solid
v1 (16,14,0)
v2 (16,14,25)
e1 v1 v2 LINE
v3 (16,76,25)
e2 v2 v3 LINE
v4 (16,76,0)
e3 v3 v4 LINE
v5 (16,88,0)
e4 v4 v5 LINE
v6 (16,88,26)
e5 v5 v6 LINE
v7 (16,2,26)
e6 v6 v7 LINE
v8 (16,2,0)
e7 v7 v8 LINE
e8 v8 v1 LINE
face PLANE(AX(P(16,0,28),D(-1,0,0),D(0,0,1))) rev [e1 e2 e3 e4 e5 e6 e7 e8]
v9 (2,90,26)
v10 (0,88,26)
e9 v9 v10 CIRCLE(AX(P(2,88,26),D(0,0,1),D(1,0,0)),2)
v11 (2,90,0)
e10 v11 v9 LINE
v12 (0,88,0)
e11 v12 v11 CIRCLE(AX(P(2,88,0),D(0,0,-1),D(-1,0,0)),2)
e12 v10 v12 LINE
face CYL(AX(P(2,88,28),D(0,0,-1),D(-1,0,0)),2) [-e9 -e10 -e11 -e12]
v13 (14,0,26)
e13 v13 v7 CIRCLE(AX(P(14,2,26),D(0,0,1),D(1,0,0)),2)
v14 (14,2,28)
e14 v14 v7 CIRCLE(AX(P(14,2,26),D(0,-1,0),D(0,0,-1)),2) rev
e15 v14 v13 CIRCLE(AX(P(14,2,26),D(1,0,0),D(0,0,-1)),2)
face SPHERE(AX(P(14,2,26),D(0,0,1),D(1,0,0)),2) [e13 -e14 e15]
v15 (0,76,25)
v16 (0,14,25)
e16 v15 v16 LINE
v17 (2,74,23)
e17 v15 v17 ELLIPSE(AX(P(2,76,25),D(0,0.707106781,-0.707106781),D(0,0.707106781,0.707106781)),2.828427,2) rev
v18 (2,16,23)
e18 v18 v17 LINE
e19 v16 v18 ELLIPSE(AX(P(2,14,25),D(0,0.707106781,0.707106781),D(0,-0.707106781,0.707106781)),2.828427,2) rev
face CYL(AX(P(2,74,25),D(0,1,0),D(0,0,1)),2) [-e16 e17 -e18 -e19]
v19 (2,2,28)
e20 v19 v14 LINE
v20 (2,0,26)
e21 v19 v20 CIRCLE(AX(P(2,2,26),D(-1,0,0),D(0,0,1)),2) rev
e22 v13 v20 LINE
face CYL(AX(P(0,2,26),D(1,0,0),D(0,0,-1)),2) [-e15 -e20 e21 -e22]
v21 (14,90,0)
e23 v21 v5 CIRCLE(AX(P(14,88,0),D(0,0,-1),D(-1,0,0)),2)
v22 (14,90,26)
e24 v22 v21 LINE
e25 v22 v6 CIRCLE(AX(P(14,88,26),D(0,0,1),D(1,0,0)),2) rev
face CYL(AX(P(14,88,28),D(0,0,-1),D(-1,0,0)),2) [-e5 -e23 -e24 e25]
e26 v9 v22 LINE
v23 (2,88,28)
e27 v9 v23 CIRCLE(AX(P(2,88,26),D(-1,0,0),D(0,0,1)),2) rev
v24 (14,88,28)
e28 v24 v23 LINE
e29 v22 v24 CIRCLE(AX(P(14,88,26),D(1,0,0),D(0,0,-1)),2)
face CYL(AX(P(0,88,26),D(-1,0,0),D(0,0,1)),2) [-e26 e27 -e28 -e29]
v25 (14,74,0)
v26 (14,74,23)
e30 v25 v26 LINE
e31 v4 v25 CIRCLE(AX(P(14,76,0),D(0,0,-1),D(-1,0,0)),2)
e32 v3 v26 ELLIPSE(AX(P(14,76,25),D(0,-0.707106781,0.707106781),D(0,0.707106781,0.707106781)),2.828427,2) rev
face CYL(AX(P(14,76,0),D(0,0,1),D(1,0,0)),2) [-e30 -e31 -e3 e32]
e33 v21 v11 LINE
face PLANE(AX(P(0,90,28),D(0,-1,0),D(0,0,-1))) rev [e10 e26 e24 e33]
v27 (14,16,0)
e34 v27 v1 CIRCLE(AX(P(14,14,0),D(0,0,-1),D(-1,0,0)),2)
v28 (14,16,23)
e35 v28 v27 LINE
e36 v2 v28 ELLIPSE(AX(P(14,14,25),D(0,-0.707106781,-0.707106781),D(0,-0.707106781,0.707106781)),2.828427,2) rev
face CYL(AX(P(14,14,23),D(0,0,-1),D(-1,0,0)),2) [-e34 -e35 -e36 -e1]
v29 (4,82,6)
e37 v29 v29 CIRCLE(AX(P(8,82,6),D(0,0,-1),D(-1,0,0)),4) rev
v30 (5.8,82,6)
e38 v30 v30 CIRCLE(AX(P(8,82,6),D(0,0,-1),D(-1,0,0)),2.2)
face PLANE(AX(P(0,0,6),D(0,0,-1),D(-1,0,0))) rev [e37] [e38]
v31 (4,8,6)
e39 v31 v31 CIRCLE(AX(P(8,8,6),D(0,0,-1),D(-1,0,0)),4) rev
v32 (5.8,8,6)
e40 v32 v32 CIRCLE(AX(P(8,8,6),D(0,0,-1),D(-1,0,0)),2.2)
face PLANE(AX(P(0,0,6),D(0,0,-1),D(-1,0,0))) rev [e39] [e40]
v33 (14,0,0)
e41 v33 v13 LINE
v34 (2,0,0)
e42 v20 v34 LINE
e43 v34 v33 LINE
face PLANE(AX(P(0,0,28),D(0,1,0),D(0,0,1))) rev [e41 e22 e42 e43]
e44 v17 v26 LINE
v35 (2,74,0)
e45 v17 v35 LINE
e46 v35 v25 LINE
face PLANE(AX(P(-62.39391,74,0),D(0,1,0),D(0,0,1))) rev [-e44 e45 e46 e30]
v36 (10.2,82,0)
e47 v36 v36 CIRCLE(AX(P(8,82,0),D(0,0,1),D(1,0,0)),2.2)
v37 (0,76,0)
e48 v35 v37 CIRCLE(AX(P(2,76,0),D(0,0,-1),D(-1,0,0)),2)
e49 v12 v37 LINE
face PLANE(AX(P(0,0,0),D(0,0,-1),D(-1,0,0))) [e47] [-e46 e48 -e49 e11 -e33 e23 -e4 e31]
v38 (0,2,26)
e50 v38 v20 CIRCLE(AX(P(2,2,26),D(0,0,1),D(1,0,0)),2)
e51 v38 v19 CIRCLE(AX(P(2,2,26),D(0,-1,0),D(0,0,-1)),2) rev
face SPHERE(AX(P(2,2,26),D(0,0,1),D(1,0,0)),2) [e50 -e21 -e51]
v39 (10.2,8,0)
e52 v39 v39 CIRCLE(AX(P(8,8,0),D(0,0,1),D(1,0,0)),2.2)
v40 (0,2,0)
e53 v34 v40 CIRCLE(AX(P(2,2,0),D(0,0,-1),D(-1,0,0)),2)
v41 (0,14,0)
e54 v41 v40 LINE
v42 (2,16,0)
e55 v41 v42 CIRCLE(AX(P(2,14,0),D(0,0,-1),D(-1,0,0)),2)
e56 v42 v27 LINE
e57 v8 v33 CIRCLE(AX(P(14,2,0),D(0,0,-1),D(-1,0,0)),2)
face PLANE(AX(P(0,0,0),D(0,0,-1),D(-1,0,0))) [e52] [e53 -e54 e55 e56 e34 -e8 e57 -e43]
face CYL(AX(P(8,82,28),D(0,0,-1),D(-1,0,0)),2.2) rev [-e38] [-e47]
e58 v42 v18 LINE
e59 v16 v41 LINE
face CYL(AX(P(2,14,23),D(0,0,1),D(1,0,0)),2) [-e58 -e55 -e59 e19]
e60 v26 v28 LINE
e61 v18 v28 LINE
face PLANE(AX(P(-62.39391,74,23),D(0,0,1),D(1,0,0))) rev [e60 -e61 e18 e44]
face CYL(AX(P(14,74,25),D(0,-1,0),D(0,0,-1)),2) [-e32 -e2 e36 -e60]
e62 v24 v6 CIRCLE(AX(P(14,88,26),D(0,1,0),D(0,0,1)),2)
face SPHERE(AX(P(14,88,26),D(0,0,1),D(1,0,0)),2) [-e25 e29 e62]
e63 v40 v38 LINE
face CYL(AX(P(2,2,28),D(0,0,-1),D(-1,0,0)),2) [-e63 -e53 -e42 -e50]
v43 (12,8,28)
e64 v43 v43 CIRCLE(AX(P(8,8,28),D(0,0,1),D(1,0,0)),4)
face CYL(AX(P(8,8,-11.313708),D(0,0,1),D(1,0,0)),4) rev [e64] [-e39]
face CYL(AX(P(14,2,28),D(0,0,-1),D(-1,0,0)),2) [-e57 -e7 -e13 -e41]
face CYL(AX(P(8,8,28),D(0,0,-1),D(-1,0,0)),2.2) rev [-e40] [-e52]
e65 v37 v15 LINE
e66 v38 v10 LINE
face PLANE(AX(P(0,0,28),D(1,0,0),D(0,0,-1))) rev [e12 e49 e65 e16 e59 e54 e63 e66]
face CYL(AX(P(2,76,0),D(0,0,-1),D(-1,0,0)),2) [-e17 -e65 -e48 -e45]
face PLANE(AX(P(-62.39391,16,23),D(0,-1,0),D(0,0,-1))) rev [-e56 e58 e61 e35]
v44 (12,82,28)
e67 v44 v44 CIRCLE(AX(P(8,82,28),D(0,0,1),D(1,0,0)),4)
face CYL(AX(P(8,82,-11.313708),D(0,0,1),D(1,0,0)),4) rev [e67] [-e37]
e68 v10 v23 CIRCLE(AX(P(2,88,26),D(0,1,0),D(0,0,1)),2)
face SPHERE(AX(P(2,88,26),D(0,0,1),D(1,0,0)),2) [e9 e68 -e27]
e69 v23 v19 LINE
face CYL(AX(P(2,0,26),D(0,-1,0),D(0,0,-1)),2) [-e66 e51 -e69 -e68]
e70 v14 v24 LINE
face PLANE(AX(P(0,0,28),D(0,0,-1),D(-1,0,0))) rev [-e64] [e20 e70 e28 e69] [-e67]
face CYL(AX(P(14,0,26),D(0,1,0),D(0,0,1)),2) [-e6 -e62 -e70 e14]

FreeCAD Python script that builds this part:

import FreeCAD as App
import Part
import Sketcher
from FreeCAD import Vector


def edges_at(feature, points):
    """Names of the edges that pass closest to the given points."""
    edges = feature.Shape.Edges
    near = lambda p: min(range(len(edges)), key=lambda i: edges[i].distToShape(Part.Vertex(*p))[0])
    return sorted({f"Edge{near(p) + 1}" for p in points})


def add_polygon(sketch, points):
    """Adds a closed chain of lines whose ends are joined by coincident constraints."""
    first, n = sketch.GeometryCount, len(points)
    for a, b in zip(points, points[1:] + points[:1]):
        sketch.addGeometry(Part.LineSegment(App.Vector(*a, 0), App.Vector(*b, 0)), False)
    for i in range(n):
        sketch.addConstraint(Sketcher.Constraint("Coincident", first + i, 2, first + (i + 1) % n, 1))

doc = App.newDocument("Part")
body = doc.addObject("PartDesign::Body", "Body")

# Sketch on XY plane
sketch1 = doc.addObject("Sketcher::SketchObject", "Sketch")
body.addObject(sketch1)
sketch1.AttachmentSupport = (doc.XY_Plane, [""])
sketch1.MapMode = "FlatFace"
add_polygon(sketch1, [(0, 90), (0, 0), (16, 0), (16, 90)])  # lines 0-3
sketch1.addGeometry(Part.Circle(Vector(8, 8, 0), Vector(0, 0, 1), 2.2), False)  # 4
sketch1.addGeometry(Part.Circle(Vector(8, 82, 0), Vector(0, 0, 1), 2.2), False)  # 5
sketch1.addConstraint([
    Sketcher.Constraint("Vertical", 0),
    Sketcher.Constraint("Horizontal", 1),
    Sketcher.Constraint("Vertical", 2),
    Sketcher.Constraint("Horizontal", 3),
    Sketcher.Constraint("Coincident", 0, 2, -1, 1),
    Sketcher.Constraint("Equal", 4, 5),
    Sketcher.Constraint("Vertical", 4, 3, 5, 3),
    Sketcher.Constraint("Diameter", 4, 4.4),
    Sketcher.Constraint("DistanceX", 1, 1, 1, 2, 16.0),
    Sketcher.Constraint("DistanceY", 0, 2, 0, 1, 90.0),
    Sketcher.Constraint("DistanceX", -1, 1, 4, 3, 8.0),
    Sketcher.Constraint("DistanceY", -1, 1, 4, 3, 8.0),
    Sketcher.Constraint("DistanceY", -1, 1, 5, 3, 82.0),
])
pad1 = doc.addObject("PartDesign::Pad", "Pad")
body.addObject(pad1)
pad1.Profile = sketch1
pad1.Length = 28

# Sketch on YZ plane
sketch2 = doc.addObject("Sketcher::SketchObject", "Sketch001")
body.addObject(sketch2)
sketch2.AttachmentSupport = (doc.YZ_Plane, [""])
sketch2.MapMode = "FlatFace"
sketch2.AttachmentOffset = App.Placement(Vector(0, 0, 16), App.Rotation())
add_polygon(sketch2, [(74, 23), (16, 23), (16, 0), (74, 0)])  # lines 0-3
sketch2.addConstraint([
    Sketcher.Constraint("Horizontal", 0),
    Sketcher.Constraint("Vertical", 1),
    Sketcher.Constraint("Horizontal", 2),
    Sketcher.Constraint("Vertical", 3),
    Sketcher.Constraint("PointOnObject", 1, 2, -1),
    Sketcher.Constraint("DistanceX", 0, 2, 0, 1, 58.0),
    Sketcher.Constraint("DistanceY", 1, 2, 1, 1, 23.0),
    Sketcher.Constraint("DistanceX", -1, 1, 0, 2, 16.0),
])
pocket1 = doc.addObject("PartDesign::Pocket", "Pocket")
body.addObject(pocket1)
pocket1.Profile = sketch2
pocket1.Length = 16

# Sketch on XY plane
sketch3 = doc.addObject("Sketcher::SketchObject", "Sketch002")
body.addObject(sketch3)
sketch3.AttachmentSupport = (doc.XY_Plane, [""])
sketch3.MapMode = "FlatFace"
sketch3.AttachmentOffset = App.Placement(Vector(0, 0, 28), App.Rotation())
sketch3.addGeometry([
    Part.Circle(Vector(8, 82, 0), Vector(0, 0, 1), 4),
    Part.Circle(Vector(8, 8, 0), Vector(0, 0, 1), 4),
], False)
sketch3.addConstraint([
    Sketcher.Constraint("Equal", 0, 1),
    Sketcher.Constraint("Vertical", 0, 3, 1, 3),
    Sketcher.Constraint("Diameter", 0, 8.0),
    Sketcher.Constraint("DistanceX", -1, 1, 0, 3, 8.0),
    Sketcher.Constraint("DistanceY", -1, 1, 0, 3, 82.0),
    Sketcher.Constraint("DistanceY", -1, 1, 1, 3, 8.0),
])
pocket2 = doc.addObject("PartDesign::Pocket", "Pocket001")
body.addObject(pocket2)
pocket2.Profile = sketch3
pocket2.Length = 22
doc.recompute()

fillet = doc.addObject("PartDesign::Fillet", "Fillet")
body.addObject(fillet)
fillet.Base = (pocket2, edges_at(pocket2, [
    (16, 45, 28),
    (8, 90, 28),
    (16, 74, 11.5),
    (16, 45, 23),
    (16, 16, 11.5),
    (0, 16, 11.5),
    (0, 45, 23),
    (0, 74, 11.5),
    (0, 45, 28),
    (0, 90, 14),
    (16, 90, 14),
    (16, 0, 14),
    (0, 0, 14),
    (8, 0, 28),
]))
fillet.Radius = 2

doc.recompute()
